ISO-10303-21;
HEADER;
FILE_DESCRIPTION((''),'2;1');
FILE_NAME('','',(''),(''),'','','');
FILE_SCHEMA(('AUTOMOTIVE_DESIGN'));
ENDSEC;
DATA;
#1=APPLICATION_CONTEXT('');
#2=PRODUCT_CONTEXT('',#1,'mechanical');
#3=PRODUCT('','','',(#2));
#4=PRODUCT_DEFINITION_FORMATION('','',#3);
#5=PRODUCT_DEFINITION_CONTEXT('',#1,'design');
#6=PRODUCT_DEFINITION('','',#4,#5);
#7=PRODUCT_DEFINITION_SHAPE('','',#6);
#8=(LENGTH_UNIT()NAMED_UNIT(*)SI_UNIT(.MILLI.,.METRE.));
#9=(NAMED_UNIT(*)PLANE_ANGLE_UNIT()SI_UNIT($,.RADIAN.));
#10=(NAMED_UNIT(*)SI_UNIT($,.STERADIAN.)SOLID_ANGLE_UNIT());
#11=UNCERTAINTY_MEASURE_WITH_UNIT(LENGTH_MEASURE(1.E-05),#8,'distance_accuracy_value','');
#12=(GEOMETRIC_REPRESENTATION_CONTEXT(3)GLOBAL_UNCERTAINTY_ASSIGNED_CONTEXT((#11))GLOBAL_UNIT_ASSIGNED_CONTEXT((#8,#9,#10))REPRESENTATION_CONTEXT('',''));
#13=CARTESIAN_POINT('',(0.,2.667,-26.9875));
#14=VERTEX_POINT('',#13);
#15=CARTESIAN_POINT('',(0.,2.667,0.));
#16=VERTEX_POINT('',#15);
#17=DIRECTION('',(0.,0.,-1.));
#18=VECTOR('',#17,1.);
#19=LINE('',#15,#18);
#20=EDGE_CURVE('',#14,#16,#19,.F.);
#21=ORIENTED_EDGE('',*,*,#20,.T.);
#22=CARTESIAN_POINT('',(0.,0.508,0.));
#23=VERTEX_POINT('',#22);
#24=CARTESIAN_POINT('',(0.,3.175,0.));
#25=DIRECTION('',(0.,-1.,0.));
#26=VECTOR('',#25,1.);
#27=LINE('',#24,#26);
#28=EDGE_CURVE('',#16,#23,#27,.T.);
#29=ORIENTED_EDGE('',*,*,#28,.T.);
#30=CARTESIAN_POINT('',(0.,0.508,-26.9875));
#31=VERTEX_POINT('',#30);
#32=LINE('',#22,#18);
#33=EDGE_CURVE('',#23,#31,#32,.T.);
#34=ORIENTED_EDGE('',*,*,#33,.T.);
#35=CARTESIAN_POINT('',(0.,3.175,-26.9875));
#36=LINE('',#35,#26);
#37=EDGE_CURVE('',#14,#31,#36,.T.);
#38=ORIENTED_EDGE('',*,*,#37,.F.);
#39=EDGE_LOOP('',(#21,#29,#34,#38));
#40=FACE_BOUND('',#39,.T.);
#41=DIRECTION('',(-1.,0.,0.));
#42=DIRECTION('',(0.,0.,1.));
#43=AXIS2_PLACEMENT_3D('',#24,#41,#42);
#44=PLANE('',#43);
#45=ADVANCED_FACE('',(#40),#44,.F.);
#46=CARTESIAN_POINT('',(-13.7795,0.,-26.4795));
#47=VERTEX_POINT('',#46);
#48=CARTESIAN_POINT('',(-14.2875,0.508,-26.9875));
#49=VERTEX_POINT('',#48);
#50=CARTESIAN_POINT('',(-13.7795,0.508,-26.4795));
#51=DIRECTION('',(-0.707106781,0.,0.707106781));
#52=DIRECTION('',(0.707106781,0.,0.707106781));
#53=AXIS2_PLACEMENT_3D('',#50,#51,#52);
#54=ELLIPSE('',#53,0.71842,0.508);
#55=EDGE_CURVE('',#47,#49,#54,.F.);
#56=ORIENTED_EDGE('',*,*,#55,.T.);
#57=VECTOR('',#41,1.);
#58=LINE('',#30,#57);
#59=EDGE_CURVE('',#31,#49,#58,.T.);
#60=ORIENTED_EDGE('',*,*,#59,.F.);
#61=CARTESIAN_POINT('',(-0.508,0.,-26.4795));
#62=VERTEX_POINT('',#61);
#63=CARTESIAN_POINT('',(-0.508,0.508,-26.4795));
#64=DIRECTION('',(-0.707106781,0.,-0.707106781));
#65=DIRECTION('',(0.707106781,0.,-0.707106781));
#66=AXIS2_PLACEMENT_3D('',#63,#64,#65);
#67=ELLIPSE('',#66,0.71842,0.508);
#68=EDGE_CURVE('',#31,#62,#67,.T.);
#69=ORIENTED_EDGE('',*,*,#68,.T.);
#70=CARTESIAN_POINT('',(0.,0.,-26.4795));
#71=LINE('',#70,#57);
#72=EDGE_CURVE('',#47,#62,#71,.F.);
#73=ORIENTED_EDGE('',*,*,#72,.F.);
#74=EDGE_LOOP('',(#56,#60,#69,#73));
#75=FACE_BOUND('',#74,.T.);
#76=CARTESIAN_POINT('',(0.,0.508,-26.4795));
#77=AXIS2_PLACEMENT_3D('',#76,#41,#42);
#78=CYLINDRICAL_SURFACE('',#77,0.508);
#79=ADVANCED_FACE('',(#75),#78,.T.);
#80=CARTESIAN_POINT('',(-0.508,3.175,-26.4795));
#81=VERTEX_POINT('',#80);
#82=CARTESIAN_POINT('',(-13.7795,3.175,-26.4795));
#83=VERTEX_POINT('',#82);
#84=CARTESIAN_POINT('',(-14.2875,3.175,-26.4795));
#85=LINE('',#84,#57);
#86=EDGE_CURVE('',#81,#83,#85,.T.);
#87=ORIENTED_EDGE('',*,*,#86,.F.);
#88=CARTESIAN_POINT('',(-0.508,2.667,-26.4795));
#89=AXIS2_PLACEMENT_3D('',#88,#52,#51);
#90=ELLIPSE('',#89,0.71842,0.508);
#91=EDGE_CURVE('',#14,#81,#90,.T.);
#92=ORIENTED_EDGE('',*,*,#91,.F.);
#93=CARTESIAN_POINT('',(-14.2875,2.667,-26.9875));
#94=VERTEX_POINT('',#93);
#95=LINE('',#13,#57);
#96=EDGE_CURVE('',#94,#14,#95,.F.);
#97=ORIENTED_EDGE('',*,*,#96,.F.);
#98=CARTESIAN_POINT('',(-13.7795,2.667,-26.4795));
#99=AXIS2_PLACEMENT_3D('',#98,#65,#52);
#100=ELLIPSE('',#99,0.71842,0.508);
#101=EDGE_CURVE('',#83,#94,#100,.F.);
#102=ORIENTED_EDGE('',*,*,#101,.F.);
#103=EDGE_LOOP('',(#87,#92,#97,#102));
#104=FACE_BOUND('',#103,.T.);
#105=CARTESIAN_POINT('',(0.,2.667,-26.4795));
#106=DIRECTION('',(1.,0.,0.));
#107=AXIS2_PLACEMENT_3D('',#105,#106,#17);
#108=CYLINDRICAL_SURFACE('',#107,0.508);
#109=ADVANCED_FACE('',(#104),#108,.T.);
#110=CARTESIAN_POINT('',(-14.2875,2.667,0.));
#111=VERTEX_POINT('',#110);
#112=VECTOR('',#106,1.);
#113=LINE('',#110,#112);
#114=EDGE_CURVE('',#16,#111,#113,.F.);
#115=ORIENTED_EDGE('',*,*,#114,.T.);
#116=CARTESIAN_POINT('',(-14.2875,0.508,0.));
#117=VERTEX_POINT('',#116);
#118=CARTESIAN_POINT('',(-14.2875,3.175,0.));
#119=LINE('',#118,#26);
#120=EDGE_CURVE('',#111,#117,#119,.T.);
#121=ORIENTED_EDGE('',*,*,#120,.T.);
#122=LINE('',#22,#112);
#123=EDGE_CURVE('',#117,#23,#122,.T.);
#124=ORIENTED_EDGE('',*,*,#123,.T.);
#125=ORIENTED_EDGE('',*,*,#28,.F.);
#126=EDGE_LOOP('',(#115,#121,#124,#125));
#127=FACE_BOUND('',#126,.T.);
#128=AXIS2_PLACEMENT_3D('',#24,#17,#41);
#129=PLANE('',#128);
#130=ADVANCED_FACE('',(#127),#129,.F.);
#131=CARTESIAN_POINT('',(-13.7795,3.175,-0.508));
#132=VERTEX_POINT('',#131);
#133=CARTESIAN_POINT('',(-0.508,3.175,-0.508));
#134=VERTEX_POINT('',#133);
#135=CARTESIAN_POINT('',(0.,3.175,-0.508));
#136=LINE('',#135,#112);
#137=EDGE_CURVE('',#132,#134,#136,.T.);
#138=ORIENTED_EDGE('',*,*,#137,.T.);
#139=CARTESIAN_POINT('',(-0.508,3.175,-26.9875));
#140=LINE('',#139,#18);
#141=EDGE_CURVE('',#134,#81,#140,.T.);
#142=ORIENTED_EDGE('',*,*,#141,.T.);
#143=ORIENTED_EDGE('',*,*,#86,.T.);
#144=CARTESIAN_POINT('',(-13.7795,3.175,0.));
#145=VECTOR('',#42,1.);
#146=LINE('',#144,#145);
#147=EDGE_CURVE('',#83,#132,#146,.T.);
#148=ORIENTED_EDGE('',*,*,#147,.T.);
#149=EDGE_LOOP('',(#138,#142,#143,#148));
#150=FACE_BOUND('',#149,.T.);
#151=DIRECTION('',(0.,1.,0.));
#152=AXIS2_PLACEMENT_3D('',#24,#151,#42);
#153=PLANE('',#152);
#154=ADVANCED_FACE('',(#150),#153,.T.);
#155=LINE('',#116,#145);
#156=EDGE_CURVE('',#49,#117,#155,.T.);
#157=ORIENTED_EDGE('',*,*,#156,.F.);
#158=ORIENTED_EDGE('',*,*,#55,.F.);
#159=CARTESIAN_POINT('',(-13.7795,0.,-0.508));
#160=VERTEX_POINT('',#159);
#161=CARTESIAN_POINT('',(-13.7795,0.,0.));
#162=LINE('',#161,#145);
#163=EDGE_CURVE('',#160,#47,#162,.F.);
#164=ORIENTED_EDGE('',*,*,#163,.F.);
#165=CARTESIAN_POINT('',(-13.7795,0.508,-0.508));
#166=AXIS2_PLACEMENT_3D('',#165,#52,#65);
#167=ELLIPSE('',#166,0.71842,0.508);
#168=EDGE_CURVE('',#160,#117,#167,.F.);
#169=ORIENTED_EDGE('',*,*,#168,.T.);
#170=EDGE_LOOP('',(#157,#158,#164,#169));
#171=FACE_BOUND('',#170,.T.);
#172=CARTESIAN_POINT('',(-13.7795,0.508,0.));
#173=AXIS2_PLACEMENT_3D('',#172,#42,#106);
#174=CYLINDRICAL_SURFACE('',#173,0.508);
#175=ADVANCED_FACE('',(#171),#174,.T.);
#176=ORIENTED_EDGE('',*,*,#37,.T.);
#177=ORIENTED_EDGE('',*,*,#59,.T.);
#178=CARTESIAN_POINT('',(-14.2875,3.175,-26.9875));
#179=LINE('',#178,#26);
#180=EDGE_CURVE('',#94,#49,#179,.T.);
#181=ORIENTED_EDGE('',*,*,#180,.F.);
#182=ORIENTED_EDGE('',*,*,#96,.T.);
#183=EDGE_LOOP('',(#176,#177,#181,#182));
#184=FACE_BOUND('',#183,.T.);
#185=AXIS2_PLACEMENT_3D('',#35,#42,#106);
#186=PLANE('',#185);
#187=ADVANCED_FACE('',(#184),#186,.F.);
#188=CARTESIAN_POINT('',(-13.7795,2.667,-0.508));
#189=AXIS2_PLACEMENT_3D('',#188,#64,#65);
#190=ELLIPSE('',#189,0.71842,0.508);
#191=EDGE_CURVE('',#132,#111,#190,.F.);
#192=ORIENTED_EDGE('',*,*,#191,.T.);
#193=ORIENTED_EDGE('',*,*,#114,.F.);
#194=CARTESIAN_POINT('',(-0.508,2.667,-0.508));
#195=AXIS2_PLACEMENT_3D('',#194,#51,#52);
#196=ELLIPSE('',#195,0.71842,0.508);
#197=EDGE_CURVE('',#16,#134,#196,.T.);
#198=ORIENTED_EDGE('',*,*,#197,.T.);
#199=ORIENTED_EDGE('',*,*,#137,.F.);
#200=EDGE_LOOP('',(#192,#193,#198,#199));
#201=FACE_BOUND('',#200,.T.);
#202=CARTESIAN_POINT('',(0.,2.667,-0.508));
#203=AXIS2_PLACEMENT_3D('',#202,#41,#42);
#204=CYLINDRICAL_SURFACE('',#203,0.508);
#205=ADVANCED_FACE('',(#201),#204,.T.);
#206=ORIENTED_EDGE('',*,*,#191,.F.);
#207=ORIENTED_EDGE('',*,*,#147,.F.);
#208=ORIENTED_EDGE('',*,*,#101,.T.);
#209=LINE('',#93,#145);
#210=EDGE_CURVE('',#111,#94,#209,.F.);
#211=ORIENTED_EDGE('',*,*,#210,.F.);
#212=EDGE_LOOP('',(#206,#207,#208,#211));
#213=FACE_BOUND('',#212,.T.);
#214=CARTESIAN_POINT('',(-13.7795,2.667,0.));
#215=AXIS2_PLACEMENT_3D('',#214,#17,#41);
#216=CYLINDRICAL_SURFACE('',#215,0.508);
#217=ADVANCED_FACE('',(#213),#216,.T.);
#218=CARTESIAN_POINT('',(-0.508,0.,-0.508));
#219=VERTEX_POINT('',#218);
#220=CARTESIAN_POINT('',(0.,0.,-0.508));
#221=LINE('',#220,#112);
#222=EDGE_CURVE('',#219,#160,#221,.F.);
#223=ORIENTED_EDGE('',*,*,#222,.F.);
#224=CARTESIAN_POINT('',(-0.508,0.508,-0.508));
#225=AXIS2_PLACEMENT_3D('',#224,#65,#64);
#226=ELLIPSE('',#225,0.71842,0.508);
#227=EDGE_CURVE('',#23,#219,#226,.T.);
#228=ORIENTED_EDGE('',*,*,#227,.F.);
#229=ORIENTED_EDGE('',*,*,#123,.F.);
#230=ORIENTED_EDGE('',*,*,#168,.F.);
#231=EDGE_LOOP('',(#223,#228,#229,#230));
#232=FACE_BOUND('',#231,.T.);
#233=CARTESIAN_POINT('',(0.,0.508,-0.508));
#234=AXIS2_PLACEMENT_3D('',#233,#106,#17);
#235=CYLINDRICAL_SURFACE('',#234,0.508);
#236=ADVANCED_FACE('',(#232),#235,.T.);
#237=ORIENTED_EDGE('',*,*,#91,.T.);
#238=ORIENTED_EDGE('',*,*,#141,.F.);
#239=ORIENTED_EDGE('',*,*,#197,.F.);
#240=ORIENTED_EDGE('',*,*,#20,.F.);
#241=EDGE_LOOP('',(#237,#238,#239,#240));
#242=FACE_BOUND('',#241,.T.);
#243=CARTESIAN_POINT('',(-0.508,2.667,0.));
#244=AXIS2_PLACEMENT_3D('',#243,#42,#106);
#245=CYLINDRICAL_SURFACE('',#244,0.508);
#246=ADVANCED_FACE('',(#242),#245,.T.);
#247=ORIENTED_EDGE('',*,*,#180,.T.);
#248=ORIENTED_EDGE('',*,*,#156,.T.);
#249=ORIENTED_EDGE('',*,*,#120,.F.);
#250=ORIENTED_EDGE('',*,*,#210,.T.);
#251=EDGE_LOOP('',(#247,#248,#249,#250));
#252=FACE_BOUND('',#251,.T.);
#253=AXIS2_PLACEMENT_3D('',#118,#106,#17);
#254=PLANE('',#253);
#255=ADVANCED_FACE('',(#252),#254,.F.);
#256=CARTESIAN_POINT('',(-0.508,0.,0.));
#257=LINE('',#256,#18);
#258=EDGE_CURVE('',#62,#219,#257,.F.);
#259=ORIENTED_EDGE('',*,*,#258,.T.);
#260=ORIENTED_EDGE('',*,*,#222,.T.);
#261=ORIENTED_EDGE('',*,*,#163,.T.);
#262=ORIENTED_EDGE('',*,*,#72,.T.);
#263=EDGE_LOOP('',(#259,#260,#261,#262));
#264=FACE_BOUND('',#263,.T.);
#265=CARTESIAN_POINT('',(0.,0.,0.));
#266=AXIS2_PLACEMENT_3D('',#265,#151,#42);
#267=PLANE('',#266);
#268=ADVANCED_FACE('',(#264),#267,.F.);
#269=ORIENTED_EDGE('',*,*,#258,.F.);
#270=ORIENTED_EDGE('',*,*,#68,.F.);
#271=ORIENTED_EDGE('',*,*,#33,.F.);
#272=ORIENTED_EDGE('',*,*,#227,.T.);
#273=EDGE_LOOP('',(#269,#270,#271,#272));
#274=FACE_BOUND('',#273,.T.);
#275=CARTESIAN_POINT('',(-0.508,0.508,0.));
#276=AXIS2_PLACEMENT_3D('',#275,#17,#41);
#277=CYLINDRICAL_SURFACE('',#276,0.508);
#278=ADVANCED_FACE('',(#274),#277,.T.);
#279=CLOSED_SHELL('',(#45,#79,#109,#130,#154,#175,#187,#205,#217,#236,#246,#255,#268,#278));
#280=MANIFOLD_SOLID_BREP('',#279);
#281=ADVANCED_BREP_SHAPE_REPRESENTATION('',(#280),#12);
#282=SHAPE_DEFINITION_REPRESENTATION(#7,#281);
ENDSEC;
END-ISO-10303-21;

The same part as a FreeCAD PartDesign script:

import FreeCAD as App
import Part
import Sketcher
from FreeCAD import Vector
Q = App.Units.Quantity


def edges_at(feature, points):
    """Names of the edges that pass closest to the given points."""
    edges = feature.Shape.Edges
    near = lambda p: min(range(len(edges)), key=lambda i: edges[i].distToShape(Part.Vertex(*p))[0])
    return sorted({f"Edge{near(p) + 1}" for p in points})


def add_polygon(sketch, points):
    """Adds a closed chain of lines whose ends are joined by coincident constraints."""
    first, n = sketch.GeometryCount, len(points)
    for a, b in zip(points, points[1:] + points[:1]):
        sketch.addGeometry(Part.LineSegment(App.Vector(*a, 0), App.Vector(*b, 0)), False)
    for i in range(n):
        sketch.addConstraint(Sketcher.Constraint("Coincident", first + i, 2, first + (i + 1) % n, 1))

doc = App.newDocument("Part")
body = doc.addObject("PartDesign::Body", "Body")

sketch1 = body.newObject("Sketcher::SketchObject", "Sketch")
sketch1.AttachmentSupport = (doc.getObject("XZ_Plane"), [""])
sketch1.MapMode = "FlatFace"
add_polygon(sketch1, [(-14, -27), (-14, 0), (0, 0), (0, -27)])
sketch1.addConstraint(Sketcher.Constraint("Vertical", 0))
sketch1.addConstraint(Sketcher.Constraint("Horizontal", 1))
sketch1.addConstraint(Sketcher.Constraint("Vertical", 2))
sketch1.addConstraint(Sketcher.Constraint("Horizontal", 3))
sketch1.addConstraint(Sketcher.Constraint("Coincident", 1, 2, -1, 1))
sketch1.addConstraint(Sketcher.Constraint("DistanceX", 1, 1, 1, 2, Q("0.5625 in")))
sketch1.addConstraint(Sketcher.Constraint("DistanceY", 0, 1, 0, 2, Q("1.0625 in")))
pad1 = body.newObject("PartDesign::Pad", "Pad")
pad1.Profile = sketch1
pad1.Length = Q("0.125 in")
pad1.Reversed = True
doc.recompute()

fillet = body.newObject("PartDesign::Fillet", "Fillet")
fillet.Base = (pad1, edges_at(pad1, [
    (-14.287, 3.175, -13.494),
    (-7.144, 3.175, 0),
    (0, 3.175, -13.494),
    (-7.144, 0, 0),
    (-14.287, 0, -13.494),
    (-7.144, 0, -26.988),
    (0, 0, -13.494),
    (-7.144, 3.175, -26.988),
]))
fillet.Radius = Q("0.02 in")

doc.recompute()
